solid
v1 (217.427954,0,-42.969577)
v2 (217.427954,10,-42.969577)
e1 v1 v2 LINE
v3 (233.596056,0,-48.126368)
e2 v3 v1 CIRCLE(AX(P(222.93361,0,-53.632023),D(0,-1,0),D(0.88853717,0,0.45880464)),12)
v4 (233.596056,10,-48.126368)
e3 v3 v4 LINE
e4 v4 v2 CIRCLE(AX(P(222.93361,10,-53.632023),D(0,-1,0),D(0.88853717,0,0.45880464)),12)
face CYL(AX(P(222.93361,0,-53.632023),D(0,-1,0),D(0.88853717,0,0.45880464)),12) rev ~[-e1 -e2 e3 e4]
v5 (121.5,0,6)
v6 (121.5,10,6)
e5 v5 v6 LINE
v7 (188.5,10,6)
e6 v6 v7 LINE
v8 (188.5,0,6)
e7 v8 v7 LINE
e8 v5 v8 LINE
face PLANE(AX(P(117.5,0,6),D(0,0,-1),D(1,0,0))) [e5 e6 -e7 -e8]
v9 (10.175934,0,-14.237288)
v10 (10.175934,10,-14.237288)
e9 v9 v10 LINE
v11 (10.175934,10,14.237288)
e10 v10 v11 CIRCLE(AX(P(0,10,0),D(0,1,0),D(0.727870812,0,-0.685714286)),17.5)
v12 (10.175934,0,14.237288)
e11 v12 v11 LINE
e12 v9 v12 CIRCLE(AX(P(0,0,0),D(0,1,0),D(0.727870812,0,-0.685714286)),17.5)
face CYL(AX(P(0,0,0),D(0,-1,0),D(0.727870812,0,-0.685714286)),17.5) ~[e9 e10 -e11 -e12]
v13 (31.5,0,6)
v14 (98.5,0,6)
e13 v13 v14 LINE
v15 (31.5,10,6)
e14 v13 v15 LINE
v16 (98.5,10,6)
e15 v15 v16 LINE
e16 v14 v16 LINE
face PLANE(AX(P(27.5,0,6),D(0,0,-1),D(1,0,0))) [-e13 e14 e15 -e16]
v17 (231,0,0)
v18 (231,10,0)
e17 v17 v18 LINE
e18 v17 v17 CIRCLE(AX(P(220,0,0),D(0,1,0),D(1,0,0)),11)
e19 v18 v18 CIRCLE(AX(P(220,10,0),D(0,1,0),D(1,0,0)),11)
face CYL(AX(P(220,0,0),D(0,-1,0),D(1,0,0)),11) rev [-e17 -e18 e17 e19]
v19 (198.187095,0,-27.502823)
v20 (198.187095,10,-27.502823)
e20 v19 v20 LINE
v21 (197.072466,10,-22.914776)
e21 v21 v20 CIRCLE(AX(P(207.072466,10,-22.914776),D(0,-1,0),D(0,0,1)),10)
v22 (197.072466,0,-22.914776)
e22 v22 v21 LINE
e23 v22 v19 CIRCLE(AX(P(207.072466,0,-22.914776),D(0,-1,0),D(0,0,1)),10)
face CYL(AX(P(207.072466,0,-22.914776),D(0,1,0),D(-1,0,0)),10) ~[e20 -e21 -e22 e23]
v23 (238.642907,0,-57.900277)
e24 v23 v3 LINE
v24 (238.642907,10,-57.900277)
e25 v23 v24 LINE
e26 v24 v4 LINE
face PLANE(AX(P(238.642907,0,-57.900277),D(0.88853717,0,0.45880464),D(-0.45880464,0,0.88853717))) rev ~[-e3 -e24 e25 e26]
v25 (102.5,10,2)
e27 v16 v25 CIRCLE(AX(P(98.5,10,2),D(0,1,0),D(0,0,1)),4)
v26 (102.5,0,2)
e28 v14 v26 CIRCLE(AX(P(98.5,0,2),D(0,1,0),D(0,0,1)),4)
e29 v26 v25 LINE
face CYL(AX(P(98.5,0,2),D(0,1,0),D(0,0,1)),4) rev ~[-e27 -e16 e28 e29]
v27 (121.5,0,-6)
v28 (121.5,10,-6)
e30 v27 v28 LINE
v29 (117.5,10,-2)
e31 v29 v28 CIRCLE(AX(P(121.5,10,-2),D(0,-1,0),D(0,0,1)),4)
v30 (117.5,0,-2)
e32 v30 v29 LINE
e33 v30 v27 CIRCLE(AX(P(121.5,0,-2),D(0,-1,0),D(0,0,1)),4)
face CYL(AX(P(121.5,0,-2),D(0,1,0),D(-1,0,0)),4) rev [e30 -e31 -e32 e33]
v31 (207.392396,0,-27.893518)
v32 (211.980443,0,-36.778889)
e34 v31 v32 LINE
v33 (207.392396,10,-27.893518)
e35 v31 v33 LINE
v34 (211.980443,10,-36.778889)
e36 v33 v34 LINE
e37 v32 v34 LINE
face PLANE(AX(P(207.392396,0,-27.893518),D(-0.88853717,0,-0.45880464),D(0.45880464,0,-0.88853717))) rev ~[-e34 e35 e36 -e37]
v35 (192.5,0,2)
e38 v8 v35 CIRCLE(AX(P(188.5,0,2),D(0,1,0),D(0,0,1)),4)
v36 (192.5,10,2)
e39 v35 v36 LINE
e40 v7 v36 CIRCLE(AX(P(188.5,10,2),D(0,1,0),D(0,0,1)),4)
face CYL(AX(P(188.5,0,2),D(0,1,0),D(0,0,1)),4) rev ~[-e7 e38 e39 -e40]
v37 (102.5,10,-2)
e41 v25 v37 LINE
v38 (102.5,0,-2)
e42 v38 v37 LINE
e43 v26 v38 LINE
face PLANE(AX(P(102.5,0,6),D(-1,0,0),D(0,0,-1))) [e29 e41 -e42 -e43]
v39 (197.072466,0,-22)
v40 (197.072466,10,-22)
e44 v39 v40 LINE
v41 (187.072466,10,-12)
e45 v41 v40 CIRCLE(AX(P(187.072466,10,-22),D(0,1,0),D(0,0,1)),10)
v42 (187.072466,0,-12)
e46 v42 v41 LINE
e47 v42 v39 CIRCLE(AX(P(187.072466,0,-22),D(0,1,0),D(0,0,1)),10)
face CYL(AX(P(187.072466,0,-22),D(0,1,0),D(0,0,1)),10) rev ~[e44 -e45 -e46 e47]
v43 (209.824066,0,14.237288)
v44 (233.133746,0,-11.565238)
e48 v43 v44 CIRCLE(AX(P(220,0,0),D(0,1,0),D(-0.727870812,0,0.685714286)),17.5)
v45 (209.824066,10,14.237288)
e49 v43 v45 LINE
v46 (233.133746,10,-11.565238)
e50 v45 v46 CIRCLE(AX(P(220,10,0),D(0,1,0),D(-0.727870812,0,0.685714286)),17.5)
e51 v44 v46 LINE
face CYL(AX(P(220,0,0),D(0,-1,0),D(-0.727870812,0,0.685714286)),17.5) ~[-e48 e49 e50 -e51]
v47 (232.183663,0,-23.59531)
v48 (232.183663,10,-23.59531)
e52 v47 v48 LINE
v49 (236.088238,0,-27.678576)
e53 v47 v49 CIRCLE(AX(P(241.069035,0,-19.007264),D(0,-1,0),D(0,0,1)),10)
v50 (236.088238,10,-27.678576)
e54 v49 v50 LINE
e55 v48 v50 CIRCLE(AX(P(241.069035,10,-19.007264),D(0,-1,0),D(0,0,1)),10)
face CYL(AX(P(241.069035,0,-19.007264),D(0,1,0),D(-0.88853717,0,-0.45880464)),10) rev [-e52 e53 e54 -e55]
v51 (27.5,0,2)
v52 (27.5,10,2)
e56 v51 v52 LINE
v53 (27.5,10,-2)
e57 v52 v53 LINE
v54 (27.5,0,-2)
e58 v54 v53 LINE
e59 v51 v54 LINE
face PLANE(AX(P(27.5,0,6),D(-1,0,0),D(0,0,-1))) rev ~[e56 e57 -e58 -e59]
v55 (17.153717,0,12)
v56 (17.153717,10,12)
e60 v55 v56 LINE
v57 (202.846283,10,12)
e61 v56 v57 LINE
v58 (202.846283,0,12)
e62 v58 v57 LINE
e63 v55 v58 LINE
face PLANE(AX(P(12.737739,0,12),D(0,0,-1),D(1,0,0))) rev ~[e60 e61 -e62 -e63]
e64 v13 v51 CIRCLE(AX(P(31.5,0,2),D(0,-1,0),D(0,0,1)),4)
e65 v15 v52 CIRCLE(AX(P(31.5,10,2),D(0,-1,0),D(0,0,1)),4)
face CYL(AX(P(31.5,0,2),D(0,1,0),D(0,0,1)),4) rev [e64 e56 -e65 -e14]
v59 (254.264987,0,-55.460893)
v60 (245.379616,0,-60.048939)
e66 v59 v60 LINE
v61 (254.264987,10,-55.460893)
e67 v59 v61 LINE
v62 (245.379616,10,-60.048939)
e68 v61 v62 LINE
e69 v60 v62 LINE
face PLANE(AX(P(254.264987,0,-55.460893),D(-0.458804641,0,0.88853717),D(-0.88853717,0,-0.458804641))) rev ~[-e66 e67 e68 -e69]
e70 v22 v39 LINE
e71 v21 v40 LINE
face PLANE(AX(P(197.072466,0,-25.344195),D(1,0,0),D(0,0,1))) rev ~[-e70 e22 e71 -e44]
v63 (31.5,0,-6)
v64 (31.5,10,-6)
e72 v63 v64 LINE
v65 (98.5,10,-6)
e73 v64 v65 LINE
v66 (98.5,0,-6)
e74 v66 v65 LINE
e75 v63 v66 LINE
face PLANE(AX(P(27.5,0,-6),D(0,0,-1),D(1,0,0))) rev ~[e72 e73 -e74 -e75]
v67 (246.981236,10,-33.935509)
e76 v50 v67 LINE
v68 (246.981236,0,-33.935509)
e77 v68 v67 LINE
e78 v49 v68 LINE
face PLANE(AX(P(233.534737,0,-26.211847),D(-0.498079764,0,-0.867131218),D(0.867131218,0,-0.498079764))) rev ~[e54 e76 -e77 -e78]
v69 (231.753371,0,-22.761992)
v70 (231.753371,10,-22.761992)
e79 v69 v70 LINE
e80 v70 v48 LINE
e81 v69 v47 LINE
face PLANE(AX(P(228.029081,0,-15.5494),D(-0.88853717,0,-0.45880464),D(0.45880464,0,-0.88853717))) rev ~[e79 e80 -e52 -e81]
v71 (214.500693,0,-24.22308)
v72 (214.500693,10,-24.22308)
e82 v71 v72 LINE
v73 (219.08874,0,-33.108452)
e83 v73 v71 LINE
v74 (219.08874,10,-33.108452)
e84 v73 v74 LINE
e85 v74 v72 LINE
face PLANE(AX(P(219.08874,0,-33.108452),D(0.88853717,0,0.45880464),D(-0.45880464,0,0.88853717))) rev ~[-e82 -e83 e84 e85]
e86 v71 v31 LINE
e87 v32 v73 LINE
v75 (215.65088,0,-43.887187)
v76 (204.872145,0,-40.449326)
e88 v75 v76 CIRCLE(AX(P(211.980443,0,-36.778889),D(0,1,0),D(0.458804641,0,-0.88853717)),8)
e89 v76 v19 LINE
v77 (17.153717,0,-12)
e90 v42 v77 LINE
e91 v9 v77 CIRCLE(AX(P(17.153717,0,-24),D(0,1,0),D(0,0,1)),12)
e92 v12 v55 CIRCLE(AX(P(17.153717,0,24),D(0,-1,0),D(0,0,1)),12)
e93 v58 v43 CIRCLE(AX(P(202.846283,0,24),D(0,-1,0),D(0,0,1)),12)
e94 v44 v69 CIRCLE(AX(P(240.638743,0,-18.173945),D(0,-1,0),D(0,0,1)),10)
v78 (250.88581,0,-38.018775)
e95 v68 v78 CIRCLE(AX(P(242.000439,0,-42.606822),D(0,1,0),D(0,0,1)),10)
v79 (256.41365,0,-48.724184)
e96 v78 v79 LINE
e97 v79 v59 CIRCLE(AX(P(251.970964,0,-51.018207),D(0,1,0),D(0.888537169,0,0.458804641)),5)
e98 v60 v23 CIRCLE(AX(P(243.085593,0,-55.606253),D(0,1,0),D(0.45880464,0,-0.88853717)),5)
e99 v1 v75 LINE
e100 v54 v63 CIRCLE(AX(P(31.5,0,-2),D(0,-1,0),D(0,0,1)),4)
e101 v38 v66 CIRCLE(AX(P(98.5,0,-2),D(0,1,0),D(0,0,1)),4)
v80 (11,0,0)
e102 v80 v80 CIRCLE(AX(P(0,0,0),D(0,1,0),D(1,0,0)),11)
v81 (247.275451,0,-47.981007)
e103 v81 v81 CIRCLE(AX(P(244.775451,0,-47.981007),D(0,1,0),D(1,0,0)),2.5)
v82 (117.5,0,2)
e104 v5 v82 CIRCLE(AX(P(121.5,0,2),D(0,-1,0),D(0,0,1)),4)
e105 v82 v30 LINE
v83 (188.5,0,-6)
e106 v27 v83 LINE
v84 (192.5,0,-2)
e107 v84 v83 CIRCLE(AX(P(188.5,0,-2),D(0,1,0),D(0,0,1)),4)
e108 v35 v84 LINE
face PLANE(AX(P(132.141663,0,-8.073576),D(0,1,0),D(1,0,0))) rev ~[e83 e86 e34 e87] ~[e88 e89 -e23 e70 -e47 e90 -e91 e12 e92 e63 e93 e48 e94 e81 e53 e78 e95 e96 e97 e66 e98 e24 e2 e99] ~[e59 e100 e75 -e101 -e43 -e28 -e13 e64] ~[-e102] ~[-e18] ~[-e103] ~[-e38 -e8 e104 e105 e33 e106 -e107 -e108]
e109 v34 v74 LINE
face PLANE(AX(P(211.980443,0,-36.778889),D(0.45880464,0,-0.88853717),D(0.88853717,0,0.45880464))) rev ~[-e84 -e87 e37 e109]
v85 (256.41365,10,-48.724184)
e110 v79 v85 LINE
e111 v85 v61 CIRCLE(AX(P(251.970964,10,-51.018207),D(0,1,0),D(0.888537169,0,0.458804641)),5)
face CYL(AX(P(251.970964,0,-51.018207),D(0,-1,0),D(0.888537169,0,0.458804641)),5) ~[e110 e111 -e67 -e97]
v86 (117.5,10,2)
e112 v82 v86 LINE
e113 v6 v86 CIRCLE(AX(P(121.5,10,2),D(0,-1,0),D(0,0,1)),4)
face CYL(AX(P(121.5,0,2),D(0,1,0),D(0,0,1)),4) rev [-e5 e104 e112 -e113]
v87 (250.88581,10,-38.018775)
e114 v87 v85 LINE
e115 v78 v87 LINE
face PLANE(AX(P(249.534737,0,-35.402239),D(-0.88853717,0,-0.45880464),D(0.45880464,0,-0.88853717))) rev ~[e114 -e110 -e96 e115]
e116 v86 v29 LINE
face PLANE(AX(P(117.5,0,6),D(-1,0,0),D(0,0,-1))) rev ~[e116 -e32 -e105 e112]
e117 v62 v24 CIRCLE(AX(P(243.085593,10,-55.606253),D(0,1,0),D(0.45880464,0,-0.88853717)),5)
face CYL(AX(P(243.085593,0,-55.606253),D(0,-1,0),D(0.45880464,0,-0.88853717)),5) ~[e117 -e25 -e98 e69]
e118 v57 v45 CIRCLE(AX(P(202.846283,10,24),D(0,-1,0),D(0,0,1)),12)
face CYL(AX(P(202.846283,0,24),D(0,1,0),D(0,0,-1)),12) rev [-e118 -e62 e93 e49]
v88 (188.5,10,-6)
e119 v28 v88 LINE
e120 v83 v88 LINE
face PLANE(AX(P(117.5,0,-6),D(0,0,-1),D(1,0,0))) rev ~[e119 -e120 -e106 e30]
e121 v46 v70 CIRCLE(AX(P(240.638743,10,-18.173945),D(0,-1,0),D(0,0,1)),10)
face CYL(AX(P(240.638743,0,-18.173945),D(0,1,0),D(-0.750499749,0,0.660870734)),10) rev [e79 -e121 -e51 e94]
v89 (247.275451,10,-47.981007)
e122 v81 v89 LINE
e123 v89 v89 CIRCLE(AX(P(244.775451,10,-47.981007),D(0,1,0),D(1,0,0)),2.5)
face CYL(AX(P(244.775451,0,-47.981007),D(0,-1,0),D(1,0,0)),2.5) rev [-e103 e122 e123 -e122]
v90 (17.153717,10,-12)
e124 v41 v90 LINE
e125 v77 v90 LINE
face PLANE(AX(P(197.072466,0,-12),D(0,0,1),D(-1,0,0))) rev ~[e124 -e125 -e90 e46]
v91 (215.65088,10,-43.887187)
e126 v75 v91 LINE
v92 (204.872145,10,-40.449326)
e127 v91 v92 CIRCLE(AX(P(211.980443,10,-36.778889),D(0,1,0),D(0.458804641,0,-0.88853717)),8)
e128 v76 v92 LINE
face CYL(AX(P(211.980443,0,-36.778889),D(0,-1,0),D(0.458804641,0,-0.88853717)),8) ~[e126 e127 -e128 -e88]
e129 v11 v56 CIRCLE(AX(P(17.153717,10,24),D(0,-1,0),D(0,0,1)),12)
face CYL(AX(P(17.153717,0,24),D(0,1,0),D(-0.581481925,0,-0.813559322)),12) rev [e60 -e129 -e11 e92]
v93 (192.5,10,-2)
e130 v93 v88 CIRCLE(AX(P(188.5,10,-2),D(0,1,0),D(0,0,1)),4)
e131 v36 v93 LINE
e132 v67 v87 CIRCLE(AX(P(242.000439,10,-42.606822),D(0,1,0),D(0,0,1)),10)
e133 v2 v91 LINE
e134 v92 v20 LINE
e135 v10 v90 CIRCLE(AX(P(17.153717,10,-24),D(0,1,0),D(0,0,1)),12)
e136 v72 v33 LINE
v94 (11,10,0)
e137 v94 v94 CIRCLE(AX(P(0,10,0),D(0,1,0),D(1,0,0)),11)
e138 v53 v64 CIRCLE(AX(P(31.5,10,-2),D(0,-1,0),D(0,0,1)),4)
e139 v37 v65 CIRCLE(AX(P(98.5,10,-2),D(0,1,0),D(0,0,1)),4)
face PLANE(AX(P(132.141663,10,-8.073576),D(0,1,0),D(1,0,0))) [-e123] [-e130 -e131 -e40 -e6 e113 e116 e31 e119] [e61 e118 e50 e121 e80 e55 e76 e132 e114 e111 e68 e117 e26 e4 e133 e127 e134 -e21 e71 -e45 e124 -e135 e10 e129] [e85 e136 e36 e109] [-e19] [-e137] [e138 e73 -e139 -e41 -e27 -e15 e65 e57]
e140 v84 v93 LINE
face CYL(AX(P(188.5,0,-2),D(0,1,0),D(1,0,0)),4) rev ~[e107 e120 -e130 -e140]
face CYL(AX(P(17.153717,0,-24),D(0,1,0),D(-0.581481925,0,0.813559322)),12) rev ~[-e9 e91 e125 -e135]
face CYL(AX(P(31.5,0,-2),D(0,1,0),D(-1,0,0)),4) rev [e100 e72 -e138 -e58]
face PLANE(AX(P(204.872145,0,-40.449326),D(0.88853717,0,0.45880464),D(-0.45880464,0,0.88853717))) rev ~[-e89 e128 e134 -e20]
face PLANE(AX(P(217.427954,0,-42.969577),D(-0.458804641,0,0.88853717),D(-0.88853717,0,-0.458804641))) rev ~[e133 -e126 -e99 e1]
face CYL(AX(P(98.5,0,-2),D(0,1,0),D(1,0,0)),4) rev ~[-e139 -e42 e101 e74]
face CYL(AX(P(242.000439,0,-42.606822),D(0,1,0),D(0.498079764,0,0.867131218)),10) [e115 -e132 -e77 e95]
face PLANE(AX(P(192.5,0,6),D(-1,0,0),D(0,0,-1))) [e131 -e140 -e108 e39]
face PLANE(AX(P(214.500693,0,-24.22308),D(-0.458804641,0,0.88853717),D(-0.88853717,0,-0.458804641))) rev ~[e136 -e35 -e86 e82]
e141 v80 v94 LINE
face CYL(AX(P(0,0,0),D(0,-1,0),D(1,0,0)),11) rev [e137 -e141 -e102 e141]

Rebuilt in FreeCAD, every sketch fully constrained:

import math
import FreeCAD as App
import Part
import Sketcher
from FreeCAD import Vector
Q = App.Units.Quantity


def edges_at(feature, points):
    """Names of the edges that pass closest to the given points."""
    edges = feature.Shape.Edges
    near = lambda p: min(range(len(edges)), key=lambda i: edges[i].distToShape(Part.Vertex(*p))[0])
    return sorted({f"Edge{near(p) + 1}" for p in points})

doc = App.newDocument("Part")
body = doc.addObject("PartDesign::Body", "Body")

# Sketch on XZ plane
sketch1 = body.newObject("Sketcher::SketchObject", "Sketch")
sketch1.AttachmentSupport = (doc.getObject("XZ_Plane"), [""])
sketch1.MapMode = "FlatFace"
sketch1.addGeometry(Part.ArcOfCircle(Part.Circle(Vector(0, 0, 0), Vector(0, 0, 1), 17.5), math.radians(43), math.radians(317)), False)
sketch1.addGeometry(Part.LineSegment(Vector(12.7, 12, 0), Vector(207.3, 12, 0)), False)
sketch1.addGeometry(Part.ArcOfCircle(Part.Circle(Vector(220, 0, 0), Vector(0, 0, 1), 17.5), math.radians(-63), math.radians(137)), False)
sketch1.addGeometry(Part.LineSegment(Vector(228, -15.5, 0), Vector(233.5, -26.2, 0)), False)
sketch1.addGeometry(Part.LineSegment(Vector(233.5, -26.2, 0), Vector(249.5, -35.4, 0)), False)
sketch1.addGeometry(Part.LineSegment(Vector(249.5, -35.4, 0), Vector(256.4, -48.7, 0)), False)
sketch1.addGeometry(Part.ArcOfCircle(Part.Circle(Vector(252, -51, 0), Vector(0, 0, 1), 5), math.radians(-63), math.radians(27)), False)
sketch1.addGeometry(Part.LineSegment(Vector(254.3, -55.5, 0), Vector(245.4, -60, 0)), False)
sketch1.addGeometry(Part.ArcOfCircle(Part.Circle(Vector(243.1, -55.6, 0), Vector(0, 0, 1), 5), math.radians(-153), math.radians(-63)), False)
sketch1.addGeometry(Part.LineSegment(Vector(238.6, -57.9, 0), Vector(233.6, -48.1, 0)), False)
sketch1.addGeometry(Part.ArcOfCircle(Part.Circle(Vector(222.9, -53.6, 0), Vector(0, 0, 1), 12), math.radians(27), math.radians(117)), False)
sketch1.addGeometry(Part.LineSegment(Vector(217.4, -43, 0), Vector(215.7, -43.9, 0)), False)
sketch1.addGeometry(Part.ArcOfCircle(Part.Circle(Vector(212, -36.8, 0), Vector(0, 0, 1), 8), math.radians(-153), math.radians(-63)), False)
sketch1.addGeometry(Part.LineSegment(Vector(204.9, -40.4, 0), Vector(197.1, -25.3, 0)), False)
sketch1.addGeometry(Part.LineSegment(Vector(197.1, -25.3, 0), Vector(197.1, -12, 0)), False)
sketch1.addGeometry(Part.LineSegment(Vector(197.1, -12, 0), Vector(12.7, -12, 0)), False)
sketch1.addGeometry(Part.Circle(Vector(0, 0, 0), Vector(0, 0, 1), 11), False)
sketch1.addGeometry(Part.LineSegment(Vector(102.5, 6, 0), Vector(27.5, 6, 0)), False)
sketch1.addGeometry(Part.LineSegment(Vector(27.5, 6, 0), Vector(27.5, -6, 0)), False)
sketch1.addGeometry(Part.LineSegment(Vector(27.5, -6, 0), Vector(102.5, -6, 0)), False)
sketch1.addGeometry(Part.LineSegment(Vector(102.5, -6, 0), Vector(102.5, 6, 0)), False)
sketch1.addGeometry(Part.LineSegment(Vector(192.5, 6, 0), Vector(117.5, 6, 0)), False)
sketch1.addGeometry(Part.LineSegment(Vector(117.5, 6, 0), Vector(117.5, -6, 0)), False)
sketch1.addGeometry(Part.LineSegment(Vector(117.5, -6, 0), Vector(192.5, -6, 0)), False)
sketch1.addGeometry(Part.LineSegment(Vector(192.5, -6, 0), Vector(192.5, 6, 0)), False)
sketch1.addGeometry(Part.Circle(Vector(220, 0, 0), Vector(0, 0, 1), 11), False)
sketch1.addGeometry(Part.LineSegment(Vector(214.5, -24.2, 0), Vector(207.4, -27.9, 0)), False)
sketch1.addGeometry(Part.LineSegment(Vector(207.4, -27.9, 0), Vector(212, -36.8, 0)), False)
sketch1.addGeometry(Part.LineSegment(Vector(212, -36.8, 0), Vector(219.1, -33.1, 0)), False)
sketch1.addGeometry(Part.LineSegment(Vector(219.1, -33.1, 0), Vector(214.5, -24.2, 0)), False)
sketch1.addGeometry(Part.Circle(Vector(244.8, -48, 0), Vector(0, 0, 1), 2.5), False)
sketch1.addConstraint(Sketcher.Constraint("Coincident", 0, 1, 1, 1))
sketch1.addConstraint(Sketcher.Constraint("Coincident", 1, 2, 2, 2))
sketch1.addConstraint(Sketcher.Constraint("Coincident", 2, 1, 3, 1))
sketch1.addConstraint(Sketcher.Constraint("Coincident", 3, 2, 4, 1))
sketch1.addConstraint(Sketcher.Constraint("Coincident", 4, 2, 5, 1))
sketch1.addConstraint(Sketcher.Constraint("Tangent", 5, 2, 6, 2))
sketch1.addConstraint(Sketcher.Constraint("Tangent", 6, 1, 7, 1))
sketch1.addConstraint(Sketcher.Constraint("Tangent", 7, 2, 8, 2))
sketch1.addConstraint(Sketcher.Constraint("Tangent", 8, 1, 9, 1))
sketch1.addConstraint(Sketcher.Constraint("Tangent", 9, 2, 10, 1))
sketch1.addConstraint(Sketcher.Constraint("Tangent", 10, 2, 11, 1))
sketch1.addConstraint(Sketcher.Constraint("Tangent", 11, 2, 12, 2))
sketch1.addConstraint(Sketcher.Constraint("Tangent", 12, 1, 13, 1))
sketch1.addConstraint(Sketcher.Constraint("Coincident", 13, 2, 14, 1))
sketch1.addConstraint(Sketcher.Constraint("Coincident", 14, 2, 15, 1))
sketch1.addConstraint(Sketcher.Constraint("Coincident", 15, 2, 0, 2))
sketch1.addConstraint(Sketcher.Constraint("Coincident", 17, 2, 18, 1))
sketch1.addConstraint(Sketcher.Constraint("Coincident", 18, 2, 19, 1))
sketch1.addConstraint(Sketcher.Constraint("Coincident", 19, 2, 20, 1))
sketch1.addConstraint(Sketcher.Constraint("Coincident", 20, 2, 17, 1))
sketch1.addConstraint(Sketcher.Constraint("Coincident", 21, 2, 22, 1))
sketch1.addConstraint(Sketcher.Constraint("Coincident", 22, 2, 23, 1))
sketch1.addConstraint(Sketcher.Constraint("Coincident", 23, 2, 24, 1))
sketch1.addConstraint(Sketcher.Constraint("Coincident", 24, 2, 21, 1))
sketch1.addConstraint(Sketcher.Constraint("Coincident", 26, 2, 27, 1))
sketch1.addConstraint(Sketcher.Constraint("Coincident", 27, 2, 28, 1))
sketch1.addConstraint(Sketcher.Constraint("Coincident", 28, 2, 29, 1))
sketch1.addConstraint(Sketcher.Constraint("Coincident", 29, 2, 26, 1))
sketch1.addConstraint(Sketcher.Constraint("Horizontal", 1))
sketch1.addConstraint(Sketcher.Constraint("Vertical", 14))
sketch1.addConstraint(Sketcher.Constraint("Horizontal", 15))
sketch1.addConstraint(Sketcher.Constraint("Horizontal", 17))
sketch1.addConstraint(Sketcher.Constraint("Vertical", 18))
sketch1.addConstraint(Sketcher.Constraint("Horizontal", 19))
sketch1.addConstraint(Sketcher.Constraint("Vertical", 20))
sketch1.addConstraint(Sketcher.Constraint("Horizontal", 21))
sketch1.addConstraint(Sketcher.Constraint("Vertical", 22))
sketch1.addConstraint(Sketcher.Constraint("Horizontal", 23))
sketch1.addConstraint(Sketcher.Constraint("Vertical", 24))
sketch1.addConstraint(Sketcher.Constraint("Coincident", 0, 3, -1, 1))
sketch1.addConstraint(Sketcher.Constraint("Coincident", 16, 3, -1, 1))
sketch1.addConstraint(Sketcher.Constraint("Coincident", 25, 3, 2, 3))
sketch1.addConstraint(Sketcher.Constraint("Coincident", 27, 2, 12, 3))
sketch1.addConstraint(Sketcher.Constraint("Equal", 0, 2))
sketch1.addConstraint(Sketcher.Constraint("Equal", 6, 8))
sketch1.addConstraint(Sketcher.Constraint("Equal", 16, 25))
sketch1.addConstraint(Sketcher.Constraint("PointOnObject", 2, 3, -1))
sketch1.addConstraint(Sketcher.Constraint("Parallel", 3, 5))
sketch1.addConstraint(Sketcher.Constraint("Perpendicular", 5, 7))
sketch1.addConstraint(Sketcher.Constraint("Perpendicular", 7, 9))
sketch1.addConstraint(Sketcher.Constraint("Perpendicular", 9, 11))
sketch1.addConstraint(Sketcher.Constraint("Perpendicular", 11, 13))
sketch1.addConstraint(Sketcher.Constraint("Perpendicular", 13, 26))
sketch1.addConstraint(Sketcher.Constraint("Perpendicular", 26, 27))
sketch1.addConstraint(Sketcher.Constraint("Perpendicular", 27, 28))
sketch1.addConstraint(Sketcher.Constraint("Perpendicular", 28, 29))
sketch1.addConstraint(Sketcher.Constraint("Horizontal", 20, 2, 21, 2))
sketch1.addConstraint(Sketcher.Constraint("Horizontal", 19, 2, 22, 2))
sketch1.addConstraint(Sketcher.Constraint("Vertical", 0, 1, 15, 2))
sketch1.addConstraint(Sketcher.Constraint("Equal", 19, 21))
sketch1.addConstraint(Sketcher.Constraint("Equal", 7, 27))
sketch1.addConstraint(Sketcher.Constraint("Diameter", 16, 22.0))
sketch1.addConstraint(Sketcher.Constraint("Diameter", 30, 5.0))
sketch1.addConstraint(Sketcher.Constraint("Radius", 6, 5.0))
sketch1.addConstraint(Sketcher.Constraint("Radius", 10, 12.0))
sketch1.addConstraint(Sketcher.Constraint("Radius", 12, 8.0))
sketch1.addConstraint(Sketcher.Constraint("Radius", 0, 17.5))
sketch1.addConstraint(Sketcher.Constraint("DistanceX", 17, 2, 17, 1, 75.0))
sketch1.addConstraint(Sketcher.Constraint("DistanceY", 18, 2, 18, 1, 12.0))
sketch1.addConstraint(Sketcher.Constraint("Distance", 3, 12.0))
sketch1.addConstraint(Sketcher.Constraint("Distance", 7, 10.0))
sketch1.addConstraint(Sketcher.Constraint("Distance", 9, 11.0))
sketch1.addConstraint(Sketcher.Constraint("Distance", 11, 2.0))
sketch1.addConstraint(Sketcher.Constraint("Distance", 13, 17.0))
sketch1.addConstraint(Sketcher.Constraint("Distance", 26, 8.0))
sketch1.addConstraint(Sketcher.Constraint("DistanceX", -1, 1, 2, 3, 220.0))
sketch1.addConstraint(Sketcher.Constraint("DistanceY", -1, 1, 0, 1, 12.0))
sketch1.addConstraint(Sketcher.Constraint("DistanceY", -1, 1, 17, 2, 6.0))
sketch1.addConstraint(Sketcher.Constraint("DistanceX", 3, 2, 4, 2, 16.0))
sketch1.addConstraint(Sketcher.Constraint("DistanceX", 20, 2, 21, 2, 15.0))
sketch1.addConstraint(Sketcher.Constraint("DistanceX", -1, 1, 17, 2, 27.5))
sketch1.addConstraint(Sketcher.Constraint("Angle", 3, Q("-62.69 deg")))
sketch1.addConstraint(Sketcher.Constraint("DistanceY", 2, 1, -1, 1, 15.5494))
sketch1.addConstraint(Sketcher.Constraint("DistanceY", 6, 3, 30, 3, 3.0372))
sketch1.addConstraint(Sketcher.Constraint("DistanceX", 30, 3, 5, 2, 11.6382))
sketch1.addConstraint(Sketcher.Constraint("Distance", 5, 14.99312))
sketch1.addConstraint(Sketcher.Constraint("DistanceY", 14, 1, 14, 2, 13.344195))
pad1 = body.newObject("PartDesign::Pad", "Pad")
pad1.Profile = sketch1
pad1.Length = 10
pad1.Reversed = True
doc.recompute()

fillet = body.newObject("PartDesign::Fillet", "Fillet")
fillet.Base = (pad1, edges_at(pad1, [
    (27.5, 5, -6),
    (27.5, 5, 6),
    (102.5, 5, 6),
    (102.5, 5, -6),
    (117.5, 5, -6),
    (117.5, 5, 6),
    (192.5, 5, 6),
    (192.5, 5, -6),
]))
fillet.Radius = 4
doc.recompute()

fillet2 = body.newObject("PartDesign::Fillet", "Fillet001")
fillet2.Base = (fillet, edges_at(fillet, [(12.738, 5, 12), (12.738, 5, -12), (207.262, 5, 12)]))
fillet2.Radius = 12
doc.recompute()

fillet3 = body.newObject("PartDesign::Fillet", "Fillet002")
fillet3.Base = (fillet2, edges_at(fillet2, [
    (197.072, 5, -12),
    (197.072, 5, -25.344),
    (249.535, 5, -35.402),
    (233.535, 5, -26.212),
    (228.029, 5, -15.549),
]))
fillet3.Radius = 10

doc.recompute()
